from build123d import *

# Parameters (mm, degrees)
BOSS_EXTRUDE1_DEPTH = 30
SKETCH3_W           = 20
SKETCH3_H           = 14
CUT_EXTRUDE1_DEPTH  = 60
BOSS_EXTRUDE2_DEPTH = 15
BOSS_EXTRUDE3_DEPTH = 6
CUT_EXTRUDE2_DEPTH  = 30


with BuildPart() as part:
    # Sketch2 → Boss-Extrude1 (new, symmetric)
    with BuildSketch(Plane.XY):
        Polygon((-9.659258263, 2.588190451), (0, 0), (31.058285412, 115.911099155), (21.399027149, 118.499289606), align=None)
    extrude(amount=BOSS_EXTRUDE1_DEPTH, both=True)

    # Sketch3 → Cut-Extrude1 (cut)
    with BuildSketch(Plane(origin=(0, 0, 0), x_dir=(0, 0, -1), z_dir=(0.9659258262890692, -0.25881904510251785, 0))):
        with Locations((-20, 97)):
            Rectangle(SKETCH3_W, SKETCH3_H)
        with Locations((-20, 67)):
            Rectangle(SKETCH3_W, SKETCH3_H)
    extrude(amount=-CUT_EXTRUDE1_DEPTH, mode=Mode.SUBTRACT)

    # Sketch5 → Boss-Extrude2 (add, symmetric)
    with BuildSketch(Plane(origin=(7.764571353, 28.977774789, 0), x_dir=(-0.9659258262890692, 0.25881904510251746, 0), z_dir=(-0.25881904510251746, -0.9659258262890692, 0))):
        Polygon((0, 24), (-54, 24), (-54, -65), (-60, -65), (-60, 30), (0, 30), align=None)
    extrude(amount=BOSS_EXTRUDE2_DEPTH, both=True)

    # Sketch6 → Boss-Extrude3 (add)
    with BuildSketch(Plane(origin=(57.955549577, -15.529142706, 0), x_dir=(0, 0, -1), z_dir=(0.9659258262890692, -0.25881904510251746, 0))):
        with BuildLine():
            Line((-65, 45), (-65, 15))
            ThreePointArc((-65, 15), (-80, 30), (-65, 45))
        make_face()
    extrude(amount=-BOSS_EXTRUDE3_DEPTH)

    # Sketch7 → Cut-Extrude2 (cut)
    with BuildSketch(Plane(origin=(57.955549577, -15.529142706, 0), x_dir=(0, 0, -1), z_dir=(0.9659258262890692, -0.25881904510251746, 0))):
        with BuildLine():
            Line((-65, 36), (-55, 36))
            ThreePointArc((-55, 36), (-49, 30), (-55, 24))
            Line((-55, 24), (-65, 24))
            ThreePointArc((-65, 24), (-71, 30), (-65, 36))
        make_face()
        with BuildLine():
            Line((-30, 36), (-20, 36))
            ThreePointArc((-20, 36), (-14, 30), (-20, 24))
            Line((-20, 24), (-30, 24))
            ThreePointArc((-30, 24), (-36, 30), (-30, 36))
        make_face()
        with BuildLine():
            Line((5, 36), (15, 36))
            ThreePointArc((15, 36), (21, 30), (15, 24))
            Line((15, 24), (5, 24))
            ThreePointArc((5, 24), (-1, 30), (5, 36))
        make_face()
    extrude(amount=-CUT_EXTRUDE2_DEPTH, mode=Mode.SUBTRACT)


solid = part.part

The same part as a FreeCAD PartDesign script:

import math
import FreeCAD as App
import Part
import Sketcher
Q = App.Units.Quantity

doc = App.newDocument("Part")
body = doc.addObject("PartDesign::Body", "Body")

# Sketch on XY plane
sketch1 = doc.addObject("Sketcher::SketchObject", "Sketch")
body.addObject(sketch1)
sketch1.AttachmentSupport = (doc.XY_Plane, [""])
sketch1.MapMode = "FlatFace"
sketch1.addGeometry(Part.LineSegment(App.Vector(-10, 3, 0), App.Vector(0, 0, 0)), False)
sketch1.addGeometry(Part.LineSegment(App.Vector(0, 0, 0), App.Vector(31, 116, 0)), False)
sketch1.addGeometry(Part.LineSegment(App.Vector(31, 116, 0), App.Vector(21, 118, 0)), False)
sketch1.addGeometry(Part.LineSegment(App.Vector(21, 118, 0), App.Vector(-10, 3, 0)), False)
sketch1.addConstraint(Sketcher.Constraint("Coincident", 0, 2, 1, 1))
sketch1.addConstraint(Sketcher.Constraint("Coincident", 1, 2, 2, 1))
sketch1.addConstraint(Sketcher.Constraint("Coincident", 2, 2, 3, 1))
sketch1.addConstraint(Sketcher.Constraint("Coincident", 3, 2, 0, 1))
sketch1.addConstraint(Sketcher.Constraint("Coincident", 0, 2, -1, 1))
sketch1.addConstraint(Sketcher.Constraint("Perpendicular", 0, 1))
sketch1.addConstraint(Sketcher.Constraint("Perpendicular", 1, 2))
sketch1.addConstraint(Sketcher.Constraint("Perpendicular", 2, 3))
sketch1.addConstraint(Sketcher.Constraint("Angle", 0, Q("-15 deg")))
sketch1.addConstraint(Sketcher.Constraint("Distance", 0, 10.0))
sketch1.addConstraint(Sketcher.Constraint("Distance", 1, 120.0))
pad1 = doc.addObject("PartDesign::Pad", "Pad")
body.addObject(pad1)
pad1.Profile = sketch1
pad1.Length = 60
pad1.Midplane = True

# Sketch on an angled plane
sketch2 = doc.addObject("Sketcher::SketchObject", "Sketch001")
body.addObject(sketch2)
sketch2.Placement = App.Placement(App.Vector(0, 0, 0), App.Rotation(App.Vector(0, 0, -1), App.Vector(0.258819045, 0.965925826, 0), App.Vector(0.965925826, -0.258819045, 0), "ZXY"))
sketch2.addGeometry(Part.LineSegment(App.Vector(-30, 104, 0), App.Vector(-30, 90, 0)), False)
sketch2.addGeometry(Part.LineSegment(App.Vector(-30, 90, 0), App.Vector(-10, 90, 0)), False)
sketch2.addGeometry(Part.LineSegment(App.Vector(-10, 90, 0), App.Vector(-10, 104, 0)), False)
sketch2.addGeometry(Part.LineSegment(App.Vector(-10, 104, 0), App.Vector(-30, 104, 0)), False)
sketch2.addGeometry(Part.LineSegment(App.Vector(-30, 74, 0), App.Vector(-30, 60, 0)), False)
sketch2.addGeometry(Part.LineSegment(App.Vector(-30, 60, 0), App.Vector(-10, 60, 0)), False)
sketch2.addGeometry(Part.LineSegment(App.Vector(-10, 60, 0), App.Vector(-10, 74, 0)), False)
sketch2.addGeometry(Part.LineSegment(App.Vector(-10, 74, 0), App.Vector(-30, 74, 0)), False)
sketch2.addConstraint(Sketcher.Constraint("Coincident", 0, 2, 1, 1))
sketch2.addConstraint(Sketcher.Constraint("Coincident", 1, 2, 2, 1))
sketch2.addConstraint(Sketcher.Constraint("Coincident", 2, 2, 3, 1))
sketch2.addConstraint(Sketcher.Constraint("Coincident", 3, 2, 0, 1))
sketch2.addConstraint(Sketcher.Constraint("Coincident", 4, 2, 5, 1))
sketch2.addConstraint(Sketcher.Constraint("Coincident", 5, 2, 6, 1))
sketch2.addConstraint(Sketcher.Constraint("Coincident", 6, 2, 7, 1))
sketch2.addConstraint(Sketcher.Constraint("Coincident", 7, 2, 4, 1))
sketch2.addConstraint(Sketcher.Constraint("Vertical", 0))
sketch2.addConstraint(Sketcher.Constraint("Horizontal", 1))
sketch2.addConstraint(Sketcher.Constraint("Vertical", 2))
sketch2.addConstraint(Sketcher.Constraint("Horizontal", 3))
sketch2.addConstraint(Sketcher.Constraint("Vertical", 4))
sketch2.addConstraint(Sketcher.Constraint("Horizontal", 5))
sketch2.addConstraint(Sketcher.Constraint("Vertical", 6))
sketch2.addConstraint(Sketcher.Constraint("Horizontal", 7))
sketch2.addConstraint(Sketcher.Constraint("Vertical", 3, 2, 4, 2))
sketch2.addConstraint(Sketcher.Constraint("Vertical", 2, 2, 5, 2))
sketch2.addConstraint(Sketcher.Constraint("Equal", 2, 4))
sketch2.addConstraint(Sketcher.Constraint("DistanceX", 1, 1, 1, 2, 20.0))
sketch2.addConstraint(Sketcher.Constraint("DistanceY", 0, 2, 0, 1, 14.0))
sketch2.addConstraint(Sketcher.Constraint("DistanceX", 0, 2, -1, 1, 30.0))
sketch2.addConstraint(Sketcher.Constraint("DistanceY", -1, 1, 0, 2, 90.0))
sketch2.addConstraint(Sketcher.Constraint("DistanceY", -1, 1, 4, 2, 60.0))
pocket1 = doc.addObject("PartDesign::Pocket", "Pocket")
body.addObject(pocket1)
pocket1.Profile = sketch2
pocket1.Length = 60

# Sketch on an angled plane
sketch3 = doc.addObject("Sketcher::SketchObject", "Sketch002")
body.addObject(sketch3)
sketch3.Placement = App.Placement(App.Vector(7.764571, 28.977775, 0), App.Rotation(App.Vector(-0.965925826, 0.258819045, 0), App.Vector(0, 0, -0.999999999), App.Vector(-0.258819045, -0.965925826, 0), "ZXY"))
sketch3.addGeometry(Part.LineSegment(App.Vector(-54, 24, 0), App.Vector(0, 24, 0)), False)
sketch3.addGeometry(Part.LineSegment(App.Vector(0, 24, 0), App.Vector(0, 30, 0)), False)
sketch3.addGeometry(Part.LineSegment(App.Vector(0, 30, 0), App.Vector(-60, 30, 0)), False)
sketch3.addGeometry(Part.LineSegment(App.Vector(-60, 30, 0), App.Vector(-60, -65, 0)), False)
sketch3.addGeometry(Part.LineSegment(App.Vector(-60, -65, 0), App.Vector(-54, -65, 0)), False)
sketch3.addGeometry(Part.LineSegment(App.Vector(-54, -65, 0), App.Vector(-54, 24, 0)), False)
sketch3.addConstraint(Sketcher.Constraint("Coincident", 0, 2, 1, 1))
sketch3.addConstraint(Sketcher.Constraint("Coincident", 1, 2, 2, 1))
sketch3.addConstraint(Sketcher.Constraint("Coincident", 2, 2, 3, 1))
sketch3.addConstraint(Sketcher.Constraint("Coincident", 3, 2, 4, 1))
sketch3.addConstraint(Sketcher.Constraint("Coincident", 4, 2, 5, 1))
sketch3.addConstraint(Sketcher.Constraint("Coincident", 5, 2, 0, 1))
sketch3.addConstraint(Sketcher.Constraint("Horizontal", 0))
sketch3.addConstraint(Sketcher.Constraint("Vertical", 1))
sketch3.addConstraint(Sketcher.Constraint("Horizontal", 2))
sketch3.addConstraint(Sketcher.Constraint("Vertical", 3))
sketch3.addConstraint(Sketcher.Constraint("Horizontal", 4))
sketch3.addConstraint(Sketcher.Constraint("Vertical", 5))
sketch3.addConstraint(Sketcher.Constraint("PointOnObject", 0, 2, -2))
sketch3.addConstraint(Sketcher.Constraint("Equal", 4, 1))
sketch3.addConstraint(Sketcher.Constraint("DistanceX", 0, 1, 0, 2, 54.0))
sketch3.addConstraint(Sketcher.Constraint("DistanceX", 2, 2, 2, 1, 60.0))
sketch3.addConstraint(Sketcher.Constraint("DistanceY", 3, 2, 3, 1, 95.0))
sketch3.addConstraint(Sketcher.Constraint("DistanceY", -1, 1, 0, 2, 24.0))
pad2 = doc.addObject("PartDesign::Pad", "Pad001")
body.addObject(pad2)
pad2.Profile = sketch3
pad2.Length = 30
pad2.Midplane = True

# Sketch on an angled plane
sketch4 = doc.addObject("Sketcher::SketchObject", "Sketch003")
body.addObject(sketch4)
sketch4.Placement = App.Placement(App.Vector(57.95555, -15.529143, 0), App.Rotation(App.Vector(0, 0, -1), App.Vector(0.258819045, 0.965925826, 0), App.Vector(0.965925826, -0.258819045, 0), "ZXY"))
sketch4.addGeometry(Part.LineSegment(App.Vector(-65, 15, 0), App.Vector(-65, 45, 0)), False)
sketch4.addGeometry(Part.ArcOfCircle(Part.Circle(App.Vector(-65, 30, 0), App.Vector(0, 0, 1), 15), math.radians(90), math.radians(270)), False)
sketch4.addConstraint(Sketcher.Constraint("Coincident", 0, 1, 1, 2))
sketch4.addConstraint(Sketcher.Constraint("Coincident", 1, 1, 0, 2))
sketch4.addConstraint(Sketcher.Constraint("Vertical", 0))
sketch4.addConstraint(Sketcher.Constraint("Vertical", 1, 3, 0, 1))
sketch4.addConstraint(Sketcher.Constraint("Radius", 1, 15.0))
sketch4.addConstraint(Sketcher.Constraint("DistanceX", 1, 3, -1, 1, 65.0))
sketch4.addConstraint(Sketcher.Constraint("DistanceY", -1, 1, 1, 3, 30.0))
pad3 = doc.addObject("PartDesign::Pad", "Pad002")
body.addObject(pad3)
pad3.Profile = sketch4
pad3.Length = 6
pad3.Reversed = True

# Sketch on an angled plane
sketch5 = doc.addObject("Sketcher::SketchObject", "Sketch004")
body.addObject(sketch5)
sketch5.Placement = App.Placement(App.Vector(57.95555, -15.529143, 0), App.Rotation(App.Vector(0, 0, -1), App.Vector(0.258819045, 0.965925826, 0), App.Vector(0.965925826, -0.258819045, 0), "ZXY"))
sketch5.addGeometry(Part.LineSegment(App.Vector(-55, 36, 0), App.Vector(-65, 36, 0)), False)
sketch5.addGeometry(Part.ArcOfCircle(Part.Circle(App.Vector(-65, 30, 0), App.Vector(0, 0, 1), 6), math.radians(90), math.radians(270)), False)
sketch5.addGeometry(Part.LineSegment(App.Vector(-65, 24, 0), App.Vector(-55, 24, 0)), False)
sketch5.addGeometry(Part.ArcOfCircle(Part.Circle(App.Vector(-55, 30, 0), App.Vector(0, 0, 1), 6), math.radians(-90), math.radians(90)), False)
sketch5.addGeometry(Part.LineSegment(App.Vector(-20, 36, 0), App.Vector(-30, 36, 0)), False)
sketch5.addGeometry(Part.ArcOfCircle(Part.Circle(App.Vector(-30, 30, 0), App.Vector(0, 0, 1), 6), math.radians(90), math.radians(270)), False)
sketch5.addGeometry(Part.LineSegment(App.Vector(-30, 24, 0), App.Vector(-20, 24, 0)), False)
sketch5.addGeometry(Part.ArcOfCircle(Part.Circle(App.Vector(-20, 30, 0), App.Vector(0, 0, 1), 6), math.radians(-90), math.radians(90)), False)
sketch5.addGeometry(Part.LineSegment(App.Vector(15, 36, 0), App.Vector(5, 36, 0)), False)
sketch5.addGeometry(Part.ArcOfCircle(Part.Circle(App.Vector(5, 30, 0), App.Vector(0, 0, 1), 6), math.radians(90), math.radians(270)), False)
sketch5.addGeometry(Part.LineSegment(App.Vector(5, 24, 0), App.Vector(15, 24, 0)), False)
sketch5.addGeometry(Part.ArcOfCircle(Part.Circle(App.Vector(15, 30, 0), App.Vector(0, 0, 1), 6), math.radians(-90), math.radians(90)), False)
sketch5.addConstraint(Sketcher.Constraint("Tangent", 0, 2, 1, 1))
sketch5.addConstraint(Sketcher.Constraint("Tangent", 1, 2, 2, 1))
sketch5.addConstraint(Sketcher.Constraint("Tangent", 2, 2, 3, 1))
sketch5.addConstraint(Sketcher.Constraint("Tangent", 3, 2, 0, 1))
sketch5.addConstraint(Sketcher.Constraint("Tangent", 4, 2, 5, 1))
sketch5.addConstraint(Sketcher.Constraint("Tangent", 5, 2, 6, 1))
sketch5.addConstraint(Sketcher.Constraint("Tangent", 6, 2, 7, 1))
sketch5.addConstraint(Sketcher.Constraint("Tangent", 7, 2, 4, 1))
sketch5.addConstraint(Sketcher.Constraint("Tangent", 8, 2, 9, 1))
sketch5.addConstraint(Sketcher.Constraint("Tangent", 9, 2, 10, 1))
sketch5.addConstraint(Sketcher.Constraint("Tangent", 10, 2, 11, 1))
sketch5.addConstraint(Sketcher.Constraint("Tangent", 11, 2, 8, 1))
sketch5.addConstraint(Sketcher.Constraint("Horizontal", 0))
sketch5.addConstraint(Sketcher.Constraint("Horizontal", 2))
sketch5.addConstraint(Sketcher.Constraint("Horizontal", 4))
sketch5.addConstraint(Sketcher.Constraint("Horizontal", 6))
sketch5.addConstraint(Sketcher.Constraint("Horizontal", 8))
sketch5.addConstraint(Sketcher.Constraint("Horizontal", 10))
sketch5.addConstraint(Sketcher.Constraint("Equal", 3, 5))
sketch5.addConstraint(Sketcher.Constraint("Equal", 7, 9))
sketch5.addConstraint(Sketcher.Constraint("Horizontal", 3, 3, 5, 3))
sketch5.addConstraint(Sketcher.Constraint("Horizontal", 7, 3, 9, 3))
sketch5.addConstraint(Sketcher.Constraint("Equal", 2, 4))
sketch5.addConstraint(Sketcher.Constraint("Equal", 6, 8))
sketch5.addConstraint(Sketcher.Constraint("Radius", 1, 6.0))
sketch5.addConstraint(Sketcher.Constraint("DistanceX", 0, 2, 0, 1, 10.0))
sketch5.addConstraint(Sketcher.Constraint("DistanceX", 1, 3, -1, 1, 65.0))
sketch5.addConstraint(Sketcher.Constraint("DistanceY", -1, 1, 1, 3, 30.0))
sketch5.addConstraint(Sketcher.Constraint("DistanceX", 5, 3, -1, 1, 30.0))
sketch5.addConstraint(Sketcher.Constraint("DistanceX", -1, 1, 9, 3, 5.0))
pocket2 = doc.addObject("PartDesign::Pocket", "Pocket001")
body.addObject(pocket2)
pocket2.Profile = sketch5
pocket2.Length = 30

doc.recompute()
